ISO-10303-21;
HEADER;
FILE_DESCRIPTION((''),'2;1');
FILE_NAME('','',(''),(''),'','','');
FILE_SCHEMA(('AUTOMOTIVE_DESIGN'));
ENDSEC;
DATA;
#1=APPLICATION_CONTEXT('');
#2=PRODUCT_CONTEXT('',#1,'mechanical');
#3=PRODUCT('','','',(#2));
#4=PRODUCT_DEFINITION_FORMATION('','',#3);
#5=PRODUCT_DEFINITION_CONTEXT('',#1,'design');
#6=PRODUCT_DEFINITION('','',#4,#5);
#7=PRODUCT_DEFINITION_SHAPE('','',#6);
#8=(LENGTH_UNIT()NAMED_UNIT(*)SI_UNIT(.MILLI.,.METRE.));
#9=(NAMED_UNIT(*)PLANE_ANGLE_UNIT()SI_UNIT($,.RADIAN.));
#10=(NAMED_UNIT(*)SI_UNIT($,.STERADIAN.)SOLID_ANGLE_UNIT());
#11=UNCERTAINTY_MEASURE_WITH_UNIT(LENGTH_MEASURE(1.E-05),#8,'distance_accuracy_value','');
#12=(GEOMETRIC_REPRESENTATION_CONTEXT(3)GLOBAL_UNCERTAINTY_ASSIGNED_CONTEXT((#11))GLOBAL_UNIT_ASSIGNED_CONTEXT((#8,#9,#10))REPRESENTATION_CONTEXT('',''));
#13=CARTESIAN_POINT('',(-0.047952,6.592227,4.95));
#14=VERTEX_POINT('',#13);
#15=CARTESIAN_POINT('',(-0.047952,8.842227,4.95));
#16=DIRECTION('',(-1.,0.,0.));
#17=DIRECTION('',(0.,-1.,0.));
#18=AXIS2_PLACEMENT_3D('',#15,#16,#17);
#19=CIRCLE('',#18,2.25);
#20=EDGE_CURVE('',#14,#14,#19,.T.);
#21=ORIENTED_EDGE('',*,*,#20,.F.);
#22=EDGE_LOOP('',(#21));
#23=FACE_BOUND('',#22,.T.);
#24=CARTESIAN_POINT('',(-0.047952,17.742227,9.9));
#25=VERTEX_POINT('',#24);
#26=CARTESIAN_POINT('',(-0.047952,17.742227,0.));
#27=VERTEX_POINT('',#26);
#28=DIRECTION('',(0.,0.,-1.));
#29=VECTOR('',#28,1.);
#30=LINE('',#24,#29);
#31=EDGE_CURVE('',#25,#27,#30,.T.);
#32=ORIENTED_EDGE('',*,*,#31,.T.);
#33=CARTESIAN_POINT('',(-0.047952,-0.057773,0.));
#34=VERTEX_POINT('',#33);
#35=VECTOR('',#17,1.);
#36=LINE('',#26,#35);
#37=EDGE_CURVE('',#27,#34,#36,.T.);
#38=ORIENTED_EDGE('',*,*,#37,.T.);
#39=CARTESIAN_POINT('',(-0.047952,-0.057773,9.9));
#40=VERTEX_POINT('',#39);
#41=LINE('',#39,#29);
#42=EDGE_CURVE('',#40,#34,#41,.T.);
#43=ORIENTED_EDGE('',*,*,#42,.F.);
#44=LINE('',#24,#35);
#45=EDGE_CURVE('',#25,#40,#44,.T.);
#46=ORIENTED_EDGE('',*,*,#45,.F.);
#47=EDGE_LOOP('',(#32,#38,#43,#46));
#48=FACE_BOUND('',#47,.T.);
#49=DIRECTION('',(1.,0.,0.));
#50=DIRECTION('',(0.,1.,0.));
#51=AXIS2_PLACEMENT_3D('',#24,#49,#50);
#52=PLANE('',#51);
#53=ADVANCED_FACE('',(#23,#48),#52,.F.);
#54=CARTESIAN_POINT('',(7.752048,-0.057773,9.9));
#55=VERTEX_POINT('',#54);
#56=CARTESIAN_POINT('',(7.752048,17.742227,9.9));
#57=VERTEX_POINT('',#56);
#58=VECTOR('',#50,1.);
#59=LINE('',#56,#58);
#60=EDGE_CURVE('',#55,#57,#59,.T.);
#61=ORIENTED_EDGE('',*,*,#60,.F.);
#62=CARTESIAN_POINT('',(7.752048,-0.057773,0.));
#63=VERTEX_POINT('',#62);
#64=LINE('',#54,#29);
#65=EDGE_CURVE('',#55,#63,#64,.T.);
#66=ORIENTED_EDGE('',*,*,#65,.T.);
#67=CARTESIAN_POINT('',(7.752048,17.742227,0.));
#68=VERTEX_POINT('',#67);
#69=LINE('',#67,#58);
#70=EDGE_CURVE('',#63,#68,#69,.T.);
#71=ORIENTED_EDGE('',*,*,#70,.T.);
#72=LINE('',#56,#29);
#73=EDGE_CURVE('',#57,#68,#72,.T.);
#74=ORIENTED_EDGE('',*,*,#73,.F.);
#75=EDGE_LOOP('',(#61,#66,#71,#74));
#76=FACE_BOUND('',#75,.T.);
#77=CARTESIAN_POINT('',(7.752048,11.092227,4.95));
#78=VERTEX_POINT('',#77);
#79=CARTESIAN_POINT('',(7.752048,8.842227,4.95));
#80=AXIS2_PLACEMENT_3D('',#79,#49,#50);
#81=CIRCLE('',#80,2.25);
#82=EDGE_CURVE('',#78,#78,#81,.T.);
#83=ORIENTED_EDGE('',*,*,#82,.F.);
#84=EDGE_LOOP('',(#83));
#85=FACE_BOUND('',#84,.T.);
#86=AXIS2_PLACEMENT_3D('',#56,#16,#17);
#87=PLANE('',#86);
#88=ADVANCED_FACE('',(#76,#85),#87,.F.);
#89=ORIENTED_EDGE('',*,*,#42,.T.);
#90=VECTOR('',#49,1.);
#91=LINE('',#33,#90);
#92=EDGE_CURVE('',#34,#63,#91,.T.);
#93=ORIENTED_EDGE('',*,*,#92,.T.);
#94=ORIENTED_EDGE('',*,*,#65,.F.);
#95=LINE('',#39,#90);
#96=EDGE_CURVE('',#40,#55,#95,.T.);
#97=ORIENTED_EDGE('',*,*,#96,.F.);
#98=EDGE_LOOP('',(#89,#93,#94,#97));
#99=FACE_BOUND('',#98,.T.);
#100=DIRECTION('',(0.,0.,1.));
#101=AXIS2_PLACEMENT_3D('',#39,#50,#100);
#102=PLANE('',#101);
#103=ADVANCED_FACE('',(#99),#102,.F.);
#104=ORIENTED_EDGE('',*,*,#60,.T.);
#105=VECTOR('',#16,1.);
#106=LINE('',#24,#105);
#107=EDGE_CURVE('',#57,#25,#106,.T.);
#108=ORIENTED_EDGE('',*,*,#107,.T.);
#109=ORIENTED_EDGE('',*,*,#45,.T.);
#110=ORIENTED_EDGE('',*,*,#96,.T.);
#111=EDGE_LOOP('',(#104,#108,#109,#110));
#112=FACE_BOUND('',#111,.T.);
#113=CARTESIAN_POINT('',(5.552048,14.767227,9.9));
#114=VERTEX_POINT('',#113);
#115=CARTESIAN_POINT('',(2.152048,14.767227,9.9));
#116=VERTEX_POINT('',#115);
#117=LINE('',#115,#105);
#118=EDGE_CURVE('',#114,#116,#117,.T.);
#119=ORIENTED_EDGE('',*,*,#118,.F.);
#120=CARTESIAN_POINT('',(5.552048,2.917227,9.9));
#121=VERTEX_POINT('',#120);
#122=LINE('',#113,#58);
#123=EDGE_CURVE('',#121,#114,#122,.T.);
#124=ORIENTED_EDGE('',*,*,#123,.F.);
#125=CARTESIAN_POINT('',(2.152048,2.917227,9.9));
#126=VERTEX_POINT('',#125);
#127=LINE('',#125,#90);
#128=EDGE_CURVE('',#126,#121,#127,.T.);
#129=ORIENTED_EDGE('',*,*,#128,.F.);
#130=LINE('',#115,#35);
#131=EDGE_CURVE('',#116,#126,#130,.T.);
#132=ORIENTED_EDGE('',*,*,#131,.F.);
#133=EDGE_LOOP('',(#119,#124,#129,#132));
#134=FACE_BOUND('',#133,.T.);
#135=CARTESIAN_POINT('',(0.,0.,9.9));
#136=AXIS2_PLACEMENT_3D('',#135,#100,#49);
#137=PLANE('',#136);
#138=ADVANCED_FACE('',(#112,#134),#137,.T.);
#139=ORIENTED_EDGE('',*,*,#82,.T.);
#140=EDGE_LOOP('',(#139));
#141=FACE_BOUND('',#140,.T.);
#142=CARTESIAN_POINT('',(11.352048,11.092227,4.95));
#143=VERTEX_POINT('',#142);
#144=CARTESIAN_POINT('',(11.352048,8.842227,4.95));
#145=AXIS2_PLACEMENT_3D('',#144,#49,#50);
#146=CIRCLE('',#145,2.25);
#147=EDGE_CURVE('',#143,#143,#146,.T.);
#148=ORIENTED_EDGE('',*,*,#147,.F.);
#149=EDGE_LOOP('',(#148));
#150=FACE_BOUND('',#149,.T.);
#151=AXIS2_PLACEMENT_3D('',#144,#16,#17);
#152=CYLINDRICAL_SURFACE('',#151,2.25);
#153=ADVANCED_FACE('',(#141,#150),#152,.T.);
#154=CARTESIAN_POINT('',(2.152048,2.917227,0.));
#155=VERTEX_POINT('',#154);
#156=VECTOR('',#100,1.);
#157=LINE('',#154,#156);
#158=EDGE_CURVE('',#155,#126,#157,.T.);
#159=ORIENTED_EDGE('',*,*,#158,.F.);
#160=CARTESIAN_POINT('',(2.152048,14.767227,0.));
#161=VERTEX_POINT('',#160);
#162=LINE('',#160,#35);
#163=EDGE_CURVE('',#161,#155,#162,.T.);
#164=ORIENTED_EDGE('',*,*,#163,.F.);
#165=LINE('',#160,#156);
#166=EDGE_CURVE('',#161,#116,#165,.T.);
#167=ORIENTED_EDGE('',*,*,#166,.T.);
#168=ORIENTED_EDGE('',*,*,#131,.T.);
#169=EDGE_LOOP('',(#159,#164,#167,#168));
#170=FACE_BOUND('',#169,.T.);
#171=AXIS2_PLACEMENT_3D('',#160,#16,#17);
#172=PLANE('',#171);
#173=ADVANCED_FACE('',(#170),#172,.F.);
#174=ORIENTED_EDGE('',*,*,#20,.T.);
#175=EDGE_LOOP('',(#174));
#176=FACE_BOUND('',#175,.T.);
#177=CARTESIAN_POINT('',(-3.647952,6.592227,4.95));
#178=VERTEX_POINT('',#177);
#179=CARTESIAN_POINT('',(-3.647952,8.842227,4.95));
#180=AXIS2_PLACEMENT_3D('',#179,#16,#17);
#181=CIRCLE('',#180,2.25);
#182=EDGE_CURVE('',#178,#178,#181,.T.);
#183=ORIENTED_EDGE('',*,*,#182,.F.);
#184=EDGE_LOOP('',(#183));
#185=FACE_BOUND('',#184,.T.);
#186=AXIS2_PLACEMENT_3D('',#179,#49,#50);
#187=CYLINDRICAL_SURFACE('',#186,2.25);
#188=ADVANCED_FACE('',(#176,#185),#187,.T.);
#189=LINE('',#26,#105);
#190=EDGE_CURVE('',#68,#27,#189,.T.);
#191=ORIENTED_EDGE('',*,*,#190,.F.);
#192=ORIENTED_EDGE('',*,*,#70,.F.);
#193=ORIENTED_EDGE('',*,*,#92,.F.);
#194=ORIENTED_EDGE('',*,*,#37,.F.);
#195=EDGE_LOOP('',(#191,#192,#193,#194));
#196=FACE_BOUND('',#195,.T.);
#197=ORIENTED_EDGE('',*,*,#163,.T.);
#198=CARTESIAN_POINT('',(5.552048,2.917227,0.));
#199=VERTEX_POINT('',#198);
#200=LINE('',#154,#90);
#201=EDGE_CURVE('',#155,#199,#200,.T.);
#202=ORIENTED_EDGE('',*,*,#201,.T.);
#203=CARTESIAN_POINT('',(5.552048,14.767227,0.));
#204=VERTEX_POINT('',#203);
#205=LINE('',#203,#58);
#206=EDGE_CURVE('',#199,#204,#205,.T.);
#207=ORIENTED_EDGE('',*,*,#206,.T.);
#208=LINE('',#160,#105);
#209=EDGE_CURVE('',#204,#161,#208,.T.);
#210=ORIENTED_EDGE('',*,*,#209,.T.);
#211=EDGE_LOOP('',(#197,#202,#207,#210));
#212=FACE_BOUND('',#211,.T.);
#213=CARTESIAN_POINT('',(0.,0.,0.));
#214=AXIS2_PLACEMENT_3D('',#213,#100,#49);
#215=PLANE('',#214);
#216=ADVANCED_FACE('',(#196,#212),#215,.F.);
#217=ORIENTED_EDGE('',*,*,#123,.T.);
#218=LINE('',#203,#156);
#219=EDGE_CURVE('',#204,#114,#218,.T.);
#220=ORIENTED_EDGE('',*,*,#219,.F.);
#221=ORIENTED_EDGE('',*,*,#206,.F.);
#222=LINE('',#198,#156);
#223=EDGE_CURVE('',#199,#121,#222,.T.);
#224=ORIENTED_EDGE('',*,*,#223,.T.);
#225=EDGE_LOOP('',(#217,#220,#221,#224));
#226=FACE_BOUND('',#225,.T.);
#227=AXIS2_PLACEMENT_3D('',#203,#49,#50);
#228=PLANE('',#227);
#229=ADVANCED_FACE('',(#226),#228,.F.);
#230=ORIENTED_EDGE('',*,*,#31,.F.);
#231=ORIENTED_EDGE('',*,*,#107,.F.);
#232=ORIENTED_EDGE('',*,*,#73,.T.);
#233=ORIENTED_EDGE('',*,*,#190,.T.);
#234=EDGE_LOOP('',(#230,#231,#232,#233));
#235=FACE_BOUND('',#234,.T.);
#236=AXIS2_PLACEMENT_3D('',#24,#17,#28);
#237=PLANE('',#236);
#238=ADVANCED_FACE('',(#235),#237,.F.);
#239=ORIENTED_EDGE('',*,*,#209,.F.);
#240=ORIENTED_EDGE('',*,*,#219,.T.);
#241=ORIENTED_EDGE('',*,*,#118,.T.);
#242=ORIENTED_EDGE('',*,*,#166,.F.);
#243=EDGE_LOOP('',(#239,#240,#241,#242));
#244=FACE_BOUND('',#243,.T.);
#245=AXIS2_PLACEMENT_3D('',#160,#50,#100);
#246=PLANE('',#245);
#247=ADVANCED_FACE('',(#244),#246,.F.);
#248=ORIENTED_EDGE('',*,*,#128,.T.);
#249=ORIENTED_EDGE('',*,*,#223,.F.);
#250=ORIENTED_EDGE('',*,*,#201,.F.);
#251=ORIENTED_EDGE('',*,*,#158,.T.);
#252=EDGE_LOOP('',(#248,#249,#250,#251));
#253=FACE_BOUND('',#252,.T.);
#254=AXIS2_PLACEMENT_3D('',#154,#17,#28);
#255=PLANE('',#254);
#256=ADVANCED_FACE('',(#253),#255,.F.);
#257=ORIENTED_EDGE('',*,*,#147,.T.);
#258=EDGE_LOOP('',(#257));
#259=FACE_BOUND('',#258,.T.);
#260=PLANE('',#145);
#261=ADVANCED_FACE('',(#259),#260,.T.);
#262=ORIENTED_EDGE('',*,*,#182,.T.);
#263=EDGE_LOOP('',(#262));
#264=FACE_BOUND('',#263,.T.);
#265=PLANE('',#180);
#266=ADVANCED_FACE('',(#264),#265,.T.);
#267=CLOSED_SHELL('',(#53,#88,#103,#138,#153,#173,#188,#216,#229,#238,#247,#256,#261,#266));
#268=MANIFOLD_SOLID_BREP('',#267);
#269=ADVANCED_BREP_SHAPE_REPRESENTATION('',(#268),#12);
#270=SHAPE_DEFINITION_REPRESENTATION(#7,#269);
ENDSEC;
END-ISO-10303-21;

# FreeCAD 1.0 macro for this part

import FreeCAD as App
import Part
import Sketcher

V = App.Vector
Q = App.Units.Quantity

doc = App.newDocument("Part")
body = doc.addObject("PartDesign::Body", "Body")

# Sketch on XY plane
sketch1 = body.newObject("Sketcher::SketchObject", "Sketch")
sketch1.AttachmentSupport = (doc.getObject("XY_Plane"), [""])
sketch1.MapMode = "FlatFace"
sketch1.addGeometry([
    Part.LineSegment(V(-0.047952, 17.742227, 0), V(-0.047952, -0.057773, 0)),
    Part.LineSegment(V(-0.047952, -0.057773, 0), V(7.752048, -0.057773, 0)),
    Part.LineSegment(V(7.752048, -0.057773, 0), V(7.752048, 17.742227, 0)),
    Part.LineSegment(V(7.752048, 17.742227, 0), V(-0.047952, 17.742227, 0)),
], False)
sketch1.addConstraint([
    Sketcher.Constraint("Coincident", 0, 2, 1, 1),
    Sketcher.Constraint("Coincident", 1, 2, 2, 1),
    Sketcher.Constraint("Coincident", 2, 2, 3, 1),
    Sketcher.Constraint("Coincident", 3, 2, 0, 1),
    Sketcher.Constraint("Vertical", 0),
    Sketcher.Constraint("Horizontal", 1),
    Sketcher.Constraint("Vertical", 2),
    Sketcher.Constraint("Horizontal", 3),
    Sketcher.Constraint("DistanceX", 1, 1, 1, 2, Q("7.8 mm")),
    Sketcher.Constraint("DistanceY", 0, 2, 0, 1, Q("17.8 mm")),
    Sketcher.Constraint("DistanceX", 0, 2, -1, 1, Q("0.047952 mm")),
    Sketcher.Constraint("DistanceY", 0, 2, -1, 1, Q("0.057773 mm")),
])
pad1 = body.newObject("PartDesign::Pad", "Pad")
pad1.Profile = sketch1
pad1.Length = 9.9

# Sketch on XY plane
sketch2 = body.newObject("Sketcher::SketchObject", "Sketch001")
sketch2.AttachmentSupport = (doc.getObject("XY_Plane"), [""])
sketch2.MapMode = "FlatFace"
sketch2.AttachmentOffset = App.Placement(V(0, 0, 9.9), App.Rotation())
sketch2.addGeometry([
    Part.LineSegment(V(2.152048, 14.767227, 0), V(2.152048, 2.917227, 0)),
    Part.LineSegment(V(2.152048, 2.917227, 0), V(5.552048, 2.917227, 0)),
    Part.LineSegment(V(5.552048, 2.917227, 0), V(5.552048, 14.767227, 0)),
    Part.LineSegment(V(5.552048, 14.767227, 0), V(2.152048, 14.767227, 0)),
], False)
sketch2.addConstraint([
    Sketcher.Constraint("Coincident", 0, 2, 1, 1),
    Sketcher.Constraint("Coincident", 1, 2, 2, 1),
    Sketcher.Constraint("Coincident", 2, 2, 3, 1),
    Sketcher.Constraint("Coincident", 3, 2, 0, 1),
    Sketcher.Constraint("Vertical", 0),
    Sketcher.Constraint("Horizontal", 1),
    Sketcher.Constraint("Vertical", 2),
    Sketcher.Constraint("Horizontal", 3),
    Sketcher.Constraint("DistanceX", 1, 1, 1, 2, Q("3.4 mm")),
    Sketcher.Constraint("DistanceY", 0, 2, 0, 1, Q("11.85 mm")),
    Sketcher.Constraint("DistanceX", -1, 1, 0, 2, Q("2.152048 mm")),
    Sketcher.Constraint("DistanceY", -1, 1, 0, 2, Q("2.917227 mm")),
])
pocket1 = body.newObject("PartDesign::Pocket", "Pocket")
pocket1.Profile = sketch2
pocket1.Length = 9.9

# Sketch on YZ plane
sketch3 = body.newObject("Sketcher::SketchObject", "Sketch002")
sketch3.AttachmentSupport = (doc.getObject("YZ_Plane"), [""])
sketch3.MapMode = "FlatFace"
sketch3.AttachmentOffset = App.Placement(V(0, 0, 7.752048), App.Rotation())
sketch3.addGeometry(Part.Circle(V(8.842227, 4.95, 0), V(0, 0, 1), 2.25), False)
sketch3.addConstraint([
    Sketcher.Constraint("Diameter", 0, Q("4.5 mm")),
    Sketcher.Constraint("DistanceY", -1, 1, 0, 3, Q("4.95 mm")),
    Sketcher.Constraint("DistanceX", -1, 1, 0, 3, Q("8.842227 mm")),
])
pad2 = body.newObject("PartDesign::Pad", "Pad001")
pad2.Profile = sketch3
pad2.Length = 3.6

# Sketch on YZ plane
sketch4 = body.newObject("Sketcher::SketchObject", "Sketch003")
sketch4.AttachmentSupport = (doc.getObject("YZ_Plane"), [""])
sketch4.MapMode = "FlatFace"
sketch4.AttachmentOffset = App.Placement(V(0, 0, -3.647952), App.Rotation())
sketch4.addGeometry(Part.Circle(V(8.842227, 4.95, 0), V(0, 0, 1), 2.25), False)
sketch4.addConstraint([
    Sketcher.Constraint("Diameter", 0, Q("4.5 mm")),
    Sketcher.Constraint("DistanceY", -1, 1, 0, 3, Q("4.95 mm")),
    Sketcher.Constraint("DistanceX", -1, 1, 0, 3, Q("8.842227 mm")),
])
pad3 = body.newObject("PartDesign::Pad", "Pad002")
pad3.Profile = sketch4
pad3.Length = 3.6

doc.recompute()
